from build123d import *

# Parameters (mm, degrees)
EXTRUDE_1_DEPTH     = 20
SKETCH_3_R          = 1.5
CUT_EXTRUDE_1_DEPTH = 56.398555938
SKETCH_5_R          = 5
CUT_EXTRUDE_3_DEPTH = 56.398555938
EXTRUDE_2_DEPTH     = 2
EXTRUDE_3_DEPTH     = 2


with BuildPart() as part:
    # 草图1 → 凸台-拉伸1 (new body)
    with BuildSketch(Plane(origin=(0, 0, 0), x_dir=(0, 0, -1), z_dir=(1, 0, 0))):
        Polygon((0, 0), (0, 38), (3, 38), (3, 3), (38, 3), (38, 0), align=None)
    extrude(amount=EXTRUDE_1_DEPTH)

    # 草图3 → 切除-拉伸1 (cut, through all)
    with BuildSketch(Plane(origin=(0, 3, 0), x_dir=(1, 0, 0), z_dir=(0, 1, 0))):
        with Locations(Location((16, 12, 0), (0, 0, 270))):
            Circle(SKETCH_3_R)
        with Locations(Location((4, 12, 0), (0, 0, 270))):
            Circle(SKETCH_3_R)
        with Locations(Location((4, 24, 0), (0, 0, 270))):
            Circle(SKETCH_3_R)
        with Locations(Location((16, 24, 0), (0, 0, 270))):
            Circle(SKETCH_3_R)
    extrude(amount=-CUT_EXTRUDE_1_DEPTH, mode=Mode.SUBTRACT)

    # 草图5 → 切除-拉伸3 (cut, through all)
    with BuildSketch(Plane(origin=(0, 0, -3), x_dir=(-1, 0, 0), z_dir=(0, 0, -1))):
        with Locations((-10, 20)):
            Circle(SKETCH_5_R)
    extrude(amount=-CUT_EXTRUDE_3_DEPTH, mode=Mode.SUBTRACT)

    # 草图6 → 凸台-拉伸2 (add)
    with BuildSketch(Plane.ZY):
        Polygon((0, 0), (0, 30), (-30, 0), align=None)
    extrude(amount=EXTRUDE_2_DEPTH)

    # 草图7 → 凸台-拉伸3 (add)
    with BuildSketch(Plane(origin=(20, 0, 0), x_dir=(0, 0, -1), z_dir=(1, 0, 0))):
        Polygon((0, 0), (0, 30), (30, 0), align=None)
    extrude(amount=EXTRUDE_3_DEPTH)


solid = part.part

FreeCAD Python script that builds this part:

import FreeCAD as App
import Part
import Sketcher
from FreeCAD import Vector
Q = App.Units.Quantity


def add_polygon(sketch, points):
    """Adds a closed chain of lines whose ends are joined by coincident constraints."""
    first, n = sketch.GeometryCount, len(points)
    for a, b in zip(points, points[1:] + points[:1]):
        sketch.addGeometry(Part.LineSegment(App.Vector(*a, 0), App.Vector(*b, 0)), False)
    for i in range(n):
        sketch.addConstraint(Sketcher.Constraint("Coincident", first + i, 2, first + (i + 1) % n, 1))

doc = App.newDocument("Part")
params = doc.addObject("Spreadsheet::Sheet", "Params")
for row, (alias, value) in enumerate([
    ("sketch1_width", "38 mm"),
    ("sketch1_width2", "3 mm"),
    ("pad1_length", "20 mm"),
    ("sketch2_diameter", "3 mm"),
    ("sketch3_diameter", "10 mm"),
    ("sketch4_width", "30 mm"),
    ("pad2_length", "2 mm"),
    ("sketch5_width", "30 mm"),
    ("pad3_length", "2 mm"),
], start=1):
    params.set(f"A{row}", alias)
    params.set(f"B{row}", "=" + value)
    params.setAlias(f"B{row}", alias)

body = doc.addObject("PartDesign::Body", "Body")

sketch1 = body.newObject("Sketcher::SketchObject", "Sketch")
sketch1.AttachmentSupport = (doc.getObject("YZ_Plane"), [""])
sketch1.MapMode = "FlatFace"
add_polygon(sketch1, [(38, 0), (0, 0), (0, -38), (3, -38), (3, -3), (38, -3)])
sketch1.addConstraint([
    Sketcher.Constraint("Horizontal", 0),
    Sketcher.Constraint("Vertical", 1),
    Sketcher.Constraint("Horizontal", 2),
    Sketcher.Constraint("Vertical", 3),
    Sketcher.Constraint("Horizontal", 4),
    Sketcher.Constraint("Vertical", 5),
    Sketcher.Constraint("Coincident", 0, 2, -1, 1),
    Sketcher.Constraint("Equal", 0, 1),
    Sketcher.Constraint("Equal", 4, 3),
    Sketcher.Constraint("DistanceX", 0, 2, 0, 1, Q("38 mm")),
    Sketcher.Constraint("DistanceX", 2, 1, 2, 2, Q("3 mm")),
])
sketch1.setExpression("Constraints[15]", "Params.sketch1_width")
sketch1.setExpression("Constraints[16]", "Params.sketch1_width2")
pad1 = body.newObject("PartDesign::Pad", "Pad")
pad1.Profile = sketch1
pad1.setExpression("Length", "Params.pad1_length")

sketch2 = body.newObject("Sketcher::SketchObject", "Sketch001")
sketch2.AttachmentSupport = (doc.getObject("XZ_Plane"), [""])
sketch2.MapMode = "FlatFace"
sketch2.AttachmentOffset = App.Placement(Vector(0, 0, -3), App.Rotation())
sketch2.addGeometry([
    Part.Circle(Vector(16, -12, 0), Vector(0, 0, 1), 1.5),
    Part.Circle(Vector(4, -12, 0), Vector(0, 0, 1), 1.5),
    Part.Circle(Vector(4, -24, 0), Vector(0, 0, 1), 1.5),
    Part.Circle(Vector(16, -24, 0), Vector(0, 0, 1), 1.5),
], False)
sketch2.addConstraint([
    Sketcher.Constraint("Equal", 0, 1),
    Sketcher.Constraint("Equal", 1, 2),
    Sketcher.Constraint("Equal", 2, 3),
    Sketcher.Constraint("Horizontal", 0, 3, 1, 3),
    Sketcher.Constraint("Horizontal", 2, 3, 3, 3),
    Sketcher.Constraint("Vertical", 1, 3, 2, 3),
    Sketcher.Constraint("Vertical", 0, 3, 3, 3),
    Sketcher.Constraint("Diameter", 0, Q("3 mm")),
    Sketcher.Constraint("DistanceX", -1, 1, 0, 3, Q("16 mm")),
    Sketcher.Constraint("DistanceY", 0, 3, -1, 1, Q("12 mm")),
    Sketcher.Constraint("DistanceX", -1, 1, 1, 3, Q("4 mm")),
    Sketcher.Constraint("DistanceY", 2, 3, -1, 1, Q("24 mm")),
])
sketch2.setExpression("Constraints[7]", "Params.sketch2_diameter")
pocket1 = body.newObject("PartDesign::Pocket", "Pocket")
pocket1.Profile = sketch2
pocket1.Type = "ThroughAll"
pocket1.Reversed = True

sketch3 = body.newObject("Sketcher::SketchObject", "Sketch002")
sketch3.AttachmentSupport = (doc.getObject("XY_Plane"), [""])
sketch3.MapMode = "FlatFace"
sketch3.AttachmentOffset = App.Placement(Vector(0, 0, -3), App.Rotation())
sketch3.addGeometry(Part.Circle(Vector(10, 20, 0), Vector(0, 0, 1), 5), False)
sketch3.addConstraint([
    Sketcher.Constraint("Diameter", 0, Q("10 mm")),
    Sketcher.Constraint("DistanceX", -1, 1, 0, 3, Q("10 mm")),
    Sketcher.Constraint("DistanceY", -1, 1, 0, 3, Q("20 mm")),
])
sketch3.setExpression("Constraints[0]", "Params.sketch3_diameter")
pocket2 = body.newObject("PartDesign::Pocket", "Pocket001")
pocket2.Profile = sketch3
pocket2.Type = "ThroughAll"
pocket2.Reversed = True

sketch4 = body.newObject("Sketcher::SketchObject", "Sketch003")
sketch4.AttachmentSupport = (doc.getObject("YZ_Plane"), [""])
sketch4.MapMode = "FlatFace"
add_polygon(sketch4, [(0, 0), (30, 0), (0, -30)])
sketch4.addConstraint([
    Sketcher.Constraint("Horizontal", 0),
    Sketcher.Constraint("Vertical", 2),
    Sketcher.Constraint("Coincident", 2, 2, -1, 1),
    Sketcher.Constraint("Equal", 0, 2),
    Sketcher.Constraint("DistanceX", 0, 1, 0, 2, Q("30 mm")),
])
sketch4.setExpression("Constraints[7]", "Params.sketch4_width")
pad2 = body.newObject("PartDesign::Pad", "Pad001")
pad2.Profile = sketch4
pad2.setExpression("Length", "Params.pad2_length")
pad2.Reversed = True

sketch5 = body.newObject("Sketcher::SketchObject", "Sketch004")
sketch5.AttachmentSupport = (doc.getObject("YZ_Plane"), [""])
sketch5.MapMode = "FlatFace"
sketch5.AttachmentOffset = App.Placement(Vector(0, 0, 20), App.Rotation())
add_polygon(sketch5, [(30, 0), (0, 0), (0, -30)])
sketch5.addConstraint([
    Sketcher.Constraint("Horizontal", 0),
    Sketcher.Constraint("Vertical", 1),
    Sketcher.Constraint("Coincident", 0, 2, -1, 1),
    Sketcher.Constraint("Equal", 0, 1),
    Sketcher.Constraint("DistanceX", 0, 2, 0, 1, Q("30 mm")),
])
sketch5.setExpression("Constraints[7]", "Params.sketch5_width")
pad3 = body.newObject("PartDesign::Pad", "Pad002")
pad3.Profile = sketch5
pad3.setExpression("Length", "Params.pad3_length")

doc.recompute()
